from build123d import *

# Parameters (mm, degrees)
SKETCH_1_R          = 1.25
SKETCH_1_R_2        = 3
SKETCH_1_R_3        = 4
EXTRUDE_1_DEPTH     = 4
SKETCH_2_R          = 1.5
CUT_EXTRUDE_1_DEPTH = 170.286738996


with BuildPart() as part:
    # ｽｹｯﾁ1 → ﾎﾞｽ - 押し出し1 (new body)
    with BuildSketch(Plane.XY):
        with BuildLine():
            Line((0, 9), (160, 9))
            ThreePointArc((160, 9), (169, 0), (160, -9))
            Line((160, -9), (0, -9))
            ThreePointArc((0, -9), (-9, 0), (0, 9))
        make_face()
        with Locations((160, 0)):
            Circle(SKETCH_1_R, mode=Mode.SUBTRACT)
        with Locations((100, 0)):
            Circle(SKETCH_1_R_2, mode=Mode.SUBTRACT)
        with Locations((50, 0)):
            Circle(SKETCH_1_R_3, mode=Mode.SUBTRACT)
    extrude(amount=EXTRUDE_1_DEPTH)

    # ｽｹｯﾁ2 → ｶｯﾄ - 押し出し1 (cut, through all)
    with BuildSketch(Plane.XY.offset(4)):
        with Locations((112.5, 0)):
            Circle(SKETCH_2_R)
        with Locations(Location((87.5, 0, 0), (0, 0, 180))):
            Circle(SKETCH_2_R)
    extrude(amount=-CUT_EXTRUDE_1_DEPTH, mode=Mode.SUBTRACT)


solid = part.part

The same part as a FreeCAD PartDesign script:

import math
import FreeCAD as App
import Part
import Sketcher

V = App.Vector
Q = App.Units.Quantity

doc = App.newDocument("Part")
body = doc.addObject("PartDesign::Body", "Body")

sketch1 = doc.addObject("Sketcher::SketchObject", "Sketch")
body.addObject(sketch1)
sketch1.AttachmentSupport = (doc.XY_Plane, [""])
sketch1.MapMode = "FlatFace"
sketch1.addGeometry(Part.LineSegment(V(160, 9, 0), V(0, 9, 0)), False)
sketch1.addGeometry(Part.ArcOfCircle(Part.Circle(V(0, 0, 0), V(0, 0, 1), 9), math.radians(90), math.radians(270)), False)
sketch1.addGeometry(Part.LineSegment(V(0, -9, 0), V(160, -9, 0)), False)
sketch1.addGeometry(Part.ArcOfCircle(Part.Circle(V(160, 0, 0), V(0, 0, 1), 9), math.radians(-90), math.radians(90)), False)
sketch1.addGeometry(Part.Circle(V(160, 0, 0), V(0, 0, 1), 1.2), False)
sketch1.addGeometry(Part.Circle(V(100, 0, 0), V(0, 0, 1), 3), False)
sketch1.addGeometry(Part.Circle(V(50, 0, 0), V(0, 0, 1), 4), False)
sketch1.addConstraint(Sketcher.Constraint("Tangent", 0, 2, 1, 1))
sketch1.addConstraint(Sketcher.Constraint("Tangent", 1, 2, 2, 1))
sketch1.addConstraint(Sketcher.Constraint("Tangent", 2, 2, 3, 1))
sketch1.addConstraint(Sketcher.Constraint("Tangent", 3, 2, 0, 1))
sketch1.addConstraint(Sketcher.Constraint("Horizontal", 0))
sketch1.addConstraint(Sketcher.Constraint("Horizontal", 2))
sketch1.addConstraint(Sketcher.Constraint("Coincident", 1, 3, -1, 1))
sketch1.addConstraint(Sketcher.Constraint("Coincident", 4, 3, 3, 3))
sketch1.addConstraint(Sketcher.Constraint("PointOnObject", 5, 3, -1))
sketch1.addConstraint(Sketcher.Constraint("PointOnObject", 6, 3, -1))
sketch1.addConstraint(Sketcher.Constraint("Diameter", 5, Q("6 mm")))
sketch1.addConstraint(Sketcher.Constraint("Diameter", 6, Q("8 mm")))
sketch1.addConstraint(Sketcher.Constraint("Radius", 1, Q("9 mm")))
sketch1.addConstraint(Sketcher.Constraint("Diameter", 4, Q("2.5 mm")))
sketch1.addConstraint(Sketcher.Constraint("DistanceX", 0, 2, 0, 1, Q("160 mm")))
sketch1.addConstraint(Sketcher.Constraint("DistanceX", -1, 1, 5, 3, Q("100 mm")))
sketch1.addConstraint(Sketcher.Constraint("DistanceX", -1, 1, 6, 3, Q("50 mm")))
pad1 = doc.addObject("PartDesign::Pad", "Pad")
body.addObject(pad1)
pad1.Profile = sketch1
pad1.Length = 4

sketch2 = doc.addObject("Sketcher::SketchObject", "Sketch001")
body.addObject(sketch2)
sketch2.AttachmentSupport = (doc.XY_Plane, [""])
sketch2.MapMode = "FlatFace"
sketch2.AttachmentOffset = App.Placement(V(0, 0, 4), App.Rotation())
sketch2.addGeometry(Part.Circle(V(112.5, 0, 0), V(0, 0, 1), 1.5), False)
sketch2.addGeometry(Part.Circle(V(87.5, 0, 0), V(0, 0, 1), 1.5), False)
sketch2.addConstraint(Sketcher.Constraint("Equal", 0, 1))
sketch2.addConstraint(Sketcher.Constraint("PointOnObject", 0, 3, -1))
sketch2.addConstraint(Sketcher.Constraint("PointOnObject", 1, 3, -1))
sketch2.addConstraint(Sketcher.Constraint("Diameter", 0, Q("3 mm")))
sketch2.addConstraint(Sketcher.Constraint("DistanceX", 1, 3, 0, 3, Q("25 mm")))
sketch2.addConstraint(Sketcher.Constraint("DistanceX", -1, 1, 0, 3, Q("112.5 mm")))
pocket1 = doc.addObject("PartDesign::Pocket", "Pocket")
body.addObject(pocket1)
pocket1.Profile = sketch2
pocket1.Type = "ThroughAll"

doc.recompute()
